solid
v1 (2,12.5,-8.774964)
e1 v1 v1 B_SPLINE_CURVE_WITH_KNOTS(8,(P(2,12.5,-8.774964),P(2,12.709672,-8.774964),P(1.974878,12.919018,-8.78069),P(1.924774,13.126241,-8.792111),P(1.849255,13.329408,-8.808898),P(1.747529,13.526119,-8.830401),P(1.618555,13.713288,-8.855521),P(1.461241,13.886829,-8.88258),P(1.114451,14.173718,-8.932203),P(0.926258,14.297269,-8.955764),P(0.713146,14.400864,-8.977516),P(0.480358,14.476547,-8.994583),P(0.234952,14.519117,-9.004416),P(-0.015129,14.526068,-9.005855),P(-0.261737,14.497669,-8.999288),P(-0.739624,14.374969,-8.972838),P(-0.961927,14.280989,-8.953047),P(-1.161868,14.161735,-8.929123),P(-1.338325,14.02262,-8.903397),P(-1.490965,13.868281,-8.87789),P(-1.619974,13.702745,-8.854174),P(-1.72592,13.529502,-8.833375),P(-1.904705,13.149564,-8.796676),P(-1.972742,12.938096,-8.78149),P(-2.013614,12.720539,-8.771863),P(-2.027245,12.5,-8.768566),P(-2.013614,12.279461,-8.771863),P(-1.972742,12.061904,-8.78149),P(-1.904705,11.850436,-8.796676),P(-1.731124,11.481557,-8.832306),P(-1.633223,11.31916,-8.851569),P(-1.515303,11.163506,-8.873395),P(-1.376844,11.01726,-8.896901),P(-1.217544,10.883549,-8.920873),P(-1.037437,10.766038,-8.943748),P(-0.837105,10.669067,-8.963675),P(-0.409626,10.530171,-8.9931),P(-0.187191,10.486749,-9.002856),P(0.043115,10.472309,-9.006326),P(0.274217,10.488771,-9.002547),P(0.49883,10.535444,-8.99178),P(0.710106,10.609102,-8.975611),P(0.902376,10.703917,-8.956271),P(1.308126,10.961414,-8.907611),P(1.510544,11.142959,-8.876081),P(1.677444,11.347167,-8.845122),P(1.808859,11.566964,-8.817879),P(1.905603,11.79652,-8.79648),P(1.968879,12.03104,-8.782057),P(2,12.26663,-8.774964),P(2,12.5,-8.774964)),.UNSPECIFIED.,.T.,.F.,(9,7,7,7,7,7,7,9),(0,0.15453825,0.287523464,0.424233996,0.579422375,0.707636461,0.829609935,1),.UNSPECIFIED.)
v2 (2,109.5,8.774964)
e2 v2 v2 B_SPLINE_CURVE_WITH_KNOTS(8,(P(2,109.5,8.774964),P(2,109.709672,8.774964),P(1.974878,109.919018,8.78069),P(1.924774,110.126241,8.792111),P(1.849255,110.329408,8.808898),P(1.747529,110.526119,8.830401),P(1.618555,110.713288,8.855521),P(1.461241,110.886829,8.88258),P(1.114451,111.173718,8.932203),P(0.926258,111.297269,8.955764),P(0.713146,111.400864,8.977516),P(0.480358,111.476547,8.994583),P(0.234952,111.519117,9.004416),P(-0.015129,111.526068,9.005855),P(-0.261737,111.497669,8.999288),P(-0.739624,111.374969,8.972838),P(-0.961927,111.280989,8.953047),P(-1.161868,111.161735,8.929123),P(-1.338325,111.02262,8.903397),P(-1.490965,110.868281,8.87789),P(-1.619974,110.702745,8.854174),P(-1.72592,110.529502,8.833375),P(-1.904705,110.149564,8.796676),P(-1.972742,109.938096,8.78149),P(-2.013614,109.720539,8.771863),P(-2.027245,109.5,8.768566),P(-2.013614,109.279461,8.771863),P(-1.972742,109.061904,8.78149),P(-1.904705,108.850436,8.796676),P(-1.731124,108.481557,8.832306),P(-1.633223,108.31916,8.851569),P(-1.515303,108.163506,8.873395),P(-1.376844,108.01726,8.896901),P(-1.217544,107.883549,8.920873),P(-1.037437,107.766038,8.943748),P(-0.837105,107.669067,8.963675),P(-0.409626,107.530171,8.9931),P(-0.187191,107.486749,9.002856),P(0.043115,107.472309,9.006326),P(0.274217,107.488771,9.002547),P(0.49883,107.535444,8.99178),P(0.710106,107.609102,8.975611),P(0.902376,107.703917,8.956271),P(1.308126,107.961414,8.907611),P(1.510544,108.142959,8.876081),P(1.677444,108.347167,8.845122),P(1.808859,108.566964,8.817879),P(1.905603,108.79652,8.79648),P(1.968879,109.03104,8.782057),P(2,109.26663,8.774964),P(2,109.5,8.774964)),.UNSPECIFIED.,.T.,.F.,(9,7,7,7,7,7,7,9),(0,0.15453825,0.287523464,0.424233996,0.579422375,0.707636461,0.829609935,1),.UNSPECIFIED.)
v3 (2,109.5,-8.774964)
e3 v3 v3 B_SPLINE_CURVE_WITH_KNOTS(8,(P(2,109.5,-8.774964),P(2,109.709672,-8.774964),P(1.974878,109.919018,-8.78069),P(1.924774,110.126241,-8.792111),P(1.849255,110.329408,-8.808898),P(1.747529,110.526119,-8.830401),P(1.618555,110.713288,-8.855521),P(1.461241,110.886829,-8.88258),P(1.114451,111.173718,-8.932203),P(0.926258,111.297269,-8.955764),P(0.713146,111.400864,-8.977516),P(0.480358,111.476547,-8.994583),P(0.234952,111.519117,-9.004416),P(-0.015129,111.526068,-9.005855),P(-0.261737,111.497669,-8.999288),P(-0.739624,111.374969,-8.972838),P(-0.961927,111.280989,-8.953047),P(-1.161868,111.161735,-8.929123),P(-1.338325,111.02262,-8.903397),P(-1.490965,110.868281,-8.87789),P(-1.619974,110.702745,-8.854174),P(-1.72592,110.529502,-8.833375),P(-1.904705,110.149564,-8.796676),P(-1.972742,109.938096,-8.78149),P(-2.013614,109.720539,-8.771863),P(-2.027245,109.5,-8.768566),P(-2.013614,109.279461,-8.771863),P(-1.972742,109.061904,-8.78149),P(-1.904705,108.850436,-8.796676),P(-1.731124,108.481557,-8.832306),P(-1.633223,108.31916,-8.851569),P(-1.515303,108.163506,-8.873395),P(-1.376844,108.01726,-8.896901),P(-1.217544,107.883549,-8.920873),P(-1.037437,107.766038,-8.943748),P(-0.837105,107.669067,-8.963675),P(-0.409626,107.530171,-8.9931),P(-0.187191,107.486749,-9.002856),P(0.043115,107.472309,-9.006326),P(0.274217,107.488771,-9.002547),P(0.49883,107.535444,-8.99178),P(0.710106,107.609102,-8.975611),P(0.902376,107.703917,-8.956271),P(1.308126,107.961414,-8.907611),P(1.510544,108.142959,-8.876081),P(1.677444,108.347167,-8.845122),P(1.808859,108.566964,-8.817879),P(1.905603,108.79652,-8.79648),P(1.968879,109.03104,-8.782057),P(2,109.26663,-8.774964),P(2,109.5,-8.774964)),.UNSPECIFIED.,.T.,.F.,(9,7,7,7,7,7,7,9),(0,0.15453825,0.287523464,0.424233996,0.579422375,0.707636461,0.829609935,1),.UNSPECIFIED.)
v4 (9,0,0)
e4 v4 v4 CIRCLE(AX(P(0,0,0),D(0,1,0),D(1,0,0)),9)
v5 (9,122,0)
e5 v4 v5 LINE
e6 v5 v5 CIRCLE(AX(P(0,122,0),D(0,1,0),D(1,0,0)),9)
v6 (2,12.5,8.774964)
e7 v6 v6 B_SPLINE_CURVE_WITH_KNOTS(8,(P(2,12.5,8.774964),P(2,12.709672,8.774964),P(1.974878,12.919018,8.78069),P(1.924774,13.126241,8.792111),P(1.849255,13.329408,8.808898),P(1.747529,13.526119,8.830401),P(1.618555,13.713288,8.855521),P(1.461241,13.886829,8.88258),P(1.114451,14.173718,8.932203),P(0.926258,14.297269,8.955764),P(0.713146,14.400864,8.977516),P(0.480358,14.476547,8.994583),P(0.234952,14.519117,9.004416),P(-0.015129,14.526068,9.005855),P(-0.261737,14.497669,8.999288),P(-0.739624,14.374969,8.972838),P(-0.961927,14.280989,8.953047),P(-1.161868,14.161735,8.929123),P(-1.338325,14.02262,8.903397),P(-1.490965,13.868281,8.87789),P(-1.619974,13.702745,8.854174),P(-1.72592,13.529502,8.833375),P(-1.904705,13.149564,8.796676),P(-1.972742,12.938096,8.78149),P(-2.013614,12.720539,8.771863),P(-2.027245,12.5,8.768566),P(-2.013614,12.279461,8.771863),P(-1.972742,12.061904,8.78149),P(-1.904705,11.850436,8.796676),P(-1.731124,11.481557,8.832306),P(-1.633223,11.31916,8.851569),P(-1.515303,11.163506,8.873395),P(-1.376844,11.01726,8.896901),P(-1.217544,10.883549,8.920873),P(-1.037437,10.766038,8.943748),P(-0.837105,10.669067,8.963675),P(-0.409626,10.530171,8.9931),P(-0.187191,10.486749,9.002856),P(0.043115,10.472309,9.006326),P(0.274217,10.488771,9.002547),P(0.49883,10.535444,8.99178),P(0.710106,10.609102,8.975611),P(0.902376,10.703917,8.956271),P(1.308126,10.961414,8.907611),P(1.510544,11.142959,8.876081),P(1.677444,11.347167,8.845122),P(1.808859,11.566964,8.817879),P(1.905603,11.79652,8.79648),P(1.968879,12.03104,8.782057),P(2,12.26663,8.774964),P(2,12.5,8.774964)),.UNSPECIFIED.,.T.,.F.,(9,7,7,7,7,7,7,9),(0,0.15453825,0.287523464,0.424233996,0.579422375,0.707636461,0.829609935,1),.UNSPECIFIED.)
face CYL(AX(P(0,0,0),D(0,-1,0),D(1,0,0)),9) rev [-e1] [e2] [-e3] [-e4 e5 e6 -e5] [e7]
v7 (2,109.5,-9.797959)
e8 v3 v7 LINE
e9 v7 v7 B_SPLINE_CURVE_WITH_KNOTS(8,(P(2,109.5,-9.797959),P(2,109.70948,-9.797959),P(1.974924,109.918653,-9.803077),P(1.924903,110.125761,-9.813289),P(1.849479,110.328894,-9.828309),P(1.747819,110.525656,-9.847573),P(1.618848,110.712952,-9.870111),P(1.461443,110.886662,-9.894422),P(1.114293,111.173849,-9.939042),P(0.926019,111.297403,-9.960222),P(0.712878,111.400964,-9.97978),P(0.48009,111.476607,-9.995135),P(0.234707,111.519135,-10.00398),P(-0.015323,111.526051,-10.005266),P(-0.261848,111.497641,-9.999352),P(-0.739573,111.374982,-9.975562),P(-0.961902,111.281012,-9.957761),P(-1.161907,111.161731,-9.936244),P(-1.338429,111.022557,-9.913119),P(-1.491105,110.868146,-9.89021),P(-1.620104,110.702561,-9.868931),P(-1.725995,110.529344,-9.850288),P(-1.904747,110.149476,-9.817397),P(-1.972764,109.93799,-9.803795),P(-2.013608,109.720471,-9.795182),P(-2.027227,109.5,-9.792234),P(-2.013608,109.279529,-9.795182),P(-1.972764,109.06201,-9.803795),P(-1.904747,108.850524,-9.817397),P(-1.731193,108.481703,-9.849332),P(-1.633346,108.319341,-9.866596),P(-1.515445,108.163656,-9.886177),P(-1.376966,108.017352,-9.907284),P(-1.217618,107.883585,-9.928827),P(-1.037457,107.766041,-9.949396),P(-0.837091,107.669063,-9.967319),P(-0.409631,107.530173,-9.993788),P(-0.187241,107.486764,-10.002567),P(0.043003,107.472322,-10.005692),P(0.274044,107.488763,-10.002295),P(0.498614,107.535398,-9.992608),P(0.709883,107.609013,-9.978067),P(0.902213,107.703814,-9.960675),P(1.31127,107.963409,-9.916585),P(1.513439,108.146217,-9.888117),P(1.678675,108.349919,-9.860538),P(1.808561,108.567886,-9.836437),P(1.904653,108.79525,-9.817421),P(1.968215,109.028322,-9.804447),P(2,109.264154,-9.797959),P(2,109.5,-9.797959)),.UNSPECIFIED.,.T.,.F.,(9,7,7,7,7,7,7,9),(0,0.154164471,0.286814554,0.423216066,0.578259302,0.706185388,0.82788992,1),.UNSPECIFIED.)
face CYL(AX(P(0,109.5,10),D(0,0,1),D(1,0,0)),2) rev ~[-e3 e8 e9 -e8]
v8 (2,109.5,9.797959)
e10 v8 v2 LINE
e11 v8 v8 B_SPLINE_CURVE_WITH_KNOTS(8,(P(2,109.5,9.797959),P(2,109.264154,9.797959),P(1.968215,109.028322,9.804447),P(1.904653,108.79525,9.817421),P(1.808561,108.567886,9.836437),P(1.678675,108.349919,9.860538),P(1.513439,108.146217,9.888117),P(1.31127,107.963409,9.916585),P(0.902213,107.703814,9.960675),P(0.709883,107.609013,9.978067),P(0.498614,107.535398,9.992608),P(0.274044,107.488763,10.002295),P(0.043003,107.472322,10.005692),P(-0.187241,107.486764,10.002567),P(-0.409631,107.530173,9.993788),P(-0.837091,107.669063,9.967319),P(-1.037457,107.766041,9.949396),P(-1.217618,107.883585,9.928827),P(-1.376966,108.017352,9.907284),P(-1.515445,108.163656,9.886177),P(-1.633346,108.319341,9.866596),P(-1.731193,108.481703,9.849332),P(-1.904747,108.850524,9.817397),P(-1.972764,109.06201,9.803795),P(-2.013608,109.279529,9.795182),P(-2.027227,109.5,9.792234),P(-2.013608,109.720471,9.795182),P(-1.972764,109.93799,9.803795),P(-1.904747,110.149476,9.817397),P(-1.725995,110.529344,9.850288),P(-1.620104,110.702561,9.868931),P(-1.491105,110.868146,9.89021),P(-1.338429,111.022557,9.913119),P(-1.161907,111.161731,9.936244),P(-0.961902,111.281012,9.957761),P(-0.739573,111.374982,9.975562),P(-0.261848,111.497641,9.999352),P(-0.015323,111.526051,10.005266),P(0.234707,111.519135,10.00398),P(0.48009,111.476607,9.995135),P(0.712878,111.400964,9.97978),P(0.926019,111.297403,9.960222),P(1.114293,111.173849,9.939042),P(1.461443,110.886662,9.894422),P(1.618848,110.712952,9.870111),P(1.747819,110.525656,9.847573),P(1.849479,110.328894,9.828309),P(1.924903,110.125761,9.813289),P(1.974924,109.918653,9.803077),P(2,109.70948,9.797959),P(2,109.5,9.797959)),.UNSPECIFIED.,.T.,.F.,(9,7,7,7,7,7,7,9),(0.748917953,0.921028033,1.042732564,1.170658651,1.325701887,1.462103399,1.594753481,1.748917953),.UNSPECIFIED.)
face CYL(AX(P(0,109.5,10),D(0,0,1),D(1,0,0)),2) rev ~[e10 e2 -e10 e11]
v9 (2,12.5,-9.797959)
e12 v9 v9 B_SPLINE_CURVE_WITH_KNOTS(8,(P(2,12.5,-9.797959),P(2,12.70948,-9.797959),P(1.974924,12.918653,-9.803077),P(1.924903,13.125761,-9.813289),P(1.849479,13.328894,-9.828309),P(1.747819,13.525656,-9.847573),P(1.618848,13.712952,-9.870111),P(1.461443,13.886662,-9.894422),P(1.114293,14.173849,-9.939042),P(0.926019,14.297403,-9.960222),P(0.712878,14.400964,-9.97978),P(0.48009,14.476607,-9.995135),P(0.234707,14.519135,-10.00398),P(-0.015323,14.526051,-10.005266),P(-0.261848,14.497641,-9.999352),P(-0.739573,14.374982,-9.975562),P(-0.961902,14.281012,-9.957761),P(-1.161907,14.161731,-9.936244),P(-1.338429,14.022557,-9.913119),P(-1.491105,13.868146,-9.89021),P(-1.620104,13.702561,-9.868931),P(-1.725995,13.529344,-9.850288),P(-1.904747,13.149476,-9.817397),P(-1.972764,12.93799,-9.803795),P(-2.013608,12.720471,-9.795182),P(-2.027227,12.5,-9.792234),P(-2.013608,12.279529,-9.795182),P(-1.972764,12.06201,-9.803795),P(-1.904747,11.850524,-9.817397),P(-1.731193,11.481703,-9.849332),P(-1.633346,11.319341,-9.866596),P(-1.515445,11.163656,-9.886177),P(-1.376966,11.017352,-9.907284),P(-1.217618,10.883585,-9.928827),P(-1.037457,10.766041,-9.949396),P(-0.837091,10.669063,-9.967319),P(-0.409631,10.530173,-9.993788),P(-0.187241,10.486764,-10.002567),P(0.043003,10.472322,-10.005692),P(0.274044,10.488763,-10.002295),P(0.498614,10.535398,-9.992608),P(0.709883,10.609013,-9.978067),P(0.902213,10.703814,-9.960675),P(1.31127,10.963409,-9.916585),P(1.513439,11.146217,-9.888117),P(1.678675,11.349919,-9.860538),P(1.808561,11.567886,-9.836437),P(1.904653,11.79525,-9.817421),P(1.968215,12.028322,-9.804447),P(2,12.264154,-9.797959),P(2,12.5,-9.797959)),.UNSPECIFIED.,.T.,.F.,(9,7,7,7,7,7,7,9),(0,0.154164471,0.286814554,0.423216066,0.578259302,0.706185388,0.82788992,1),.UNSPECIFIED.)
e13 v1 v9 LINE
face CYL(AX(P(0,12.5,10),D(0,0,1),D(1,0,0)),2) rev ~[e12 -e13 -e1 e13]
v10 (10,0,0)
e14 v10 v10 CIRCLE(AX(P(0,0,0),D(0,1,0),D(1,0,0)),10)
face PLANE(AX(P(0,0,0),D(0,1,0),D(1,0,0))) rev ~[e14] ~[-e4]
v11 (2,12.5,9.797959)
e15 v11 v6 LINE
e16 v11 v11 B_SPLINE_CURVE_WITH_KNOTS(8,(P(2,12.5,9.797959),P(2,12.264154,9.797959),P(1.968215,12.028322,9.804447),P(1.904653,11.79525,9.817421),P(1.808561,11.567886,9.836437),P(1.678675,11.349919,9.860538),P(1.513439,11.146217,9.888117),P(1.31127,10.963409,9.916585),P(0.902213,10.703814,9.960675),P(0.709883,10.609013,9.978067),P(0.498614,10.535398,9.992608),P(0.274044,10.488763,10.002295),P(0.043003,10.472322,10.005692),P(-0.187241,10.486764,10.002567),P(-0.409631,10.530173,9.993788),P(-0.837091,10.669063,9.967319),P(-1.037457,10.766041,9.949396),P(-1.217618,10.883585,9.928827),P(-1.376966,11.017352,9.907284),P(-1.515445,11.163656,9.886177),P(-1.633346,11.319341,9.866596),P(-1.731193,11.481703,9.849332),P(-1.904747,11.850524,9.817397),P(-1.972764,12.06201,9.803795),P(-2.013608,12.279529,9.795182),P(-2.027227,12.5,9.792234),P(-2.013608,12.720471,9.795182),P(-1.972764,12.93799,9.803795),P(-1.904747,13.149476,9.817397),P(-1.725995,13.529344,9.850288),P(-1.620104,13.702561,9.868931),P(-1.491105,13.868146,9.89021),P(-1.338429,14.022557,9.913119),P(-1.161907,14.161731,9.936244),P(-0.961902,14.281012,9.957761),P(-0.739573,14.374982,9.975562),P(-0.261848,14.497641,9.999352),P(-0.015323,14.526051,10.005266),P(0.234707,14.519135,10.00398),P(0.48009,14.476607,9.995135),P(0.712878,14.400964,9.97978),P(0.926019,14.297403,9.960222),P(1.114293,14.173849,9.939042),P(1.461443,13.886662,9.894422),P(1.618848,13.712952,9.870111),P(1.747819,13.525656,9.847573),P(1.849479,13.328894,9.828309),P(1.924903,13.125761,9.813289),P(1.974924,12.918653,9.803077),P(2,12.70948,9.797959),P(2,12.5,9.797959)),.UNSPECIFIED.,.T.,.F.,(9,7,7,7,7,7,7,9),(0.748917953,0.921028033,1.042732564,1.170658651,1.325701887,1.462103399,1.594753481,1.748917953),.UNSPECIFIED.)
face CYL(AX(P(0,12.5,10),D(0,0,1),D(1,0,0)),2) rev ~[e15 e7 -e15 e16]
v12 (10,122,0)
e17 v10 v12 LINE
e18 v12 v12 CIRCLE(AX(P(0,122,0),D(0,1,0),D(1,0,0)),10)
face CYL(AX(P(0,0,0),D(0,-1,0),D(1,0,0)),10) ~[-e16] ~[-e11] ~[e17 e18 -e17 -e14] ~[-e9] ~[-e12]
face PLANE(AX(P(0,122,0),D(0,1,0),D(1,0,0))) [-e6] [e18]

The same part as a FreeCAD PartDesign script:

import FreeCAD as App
import Part
import Sketcher

V = App.Vector

doc = App.newDocument("Part")
body = doc.addObject("PartDesign::Body", "Body")

sketch1 = body.newObject("Sketcher::SketchObject", "Sketch")
sketch1.AttachmentSupport = (doc.getObject("XZ_Plane"), [""])
sketch1.MapMode = "FlatFace"
sketch1.addGeometry([
    Part.Circle(V(0, 0, 0), V(0, 0, 1), 10),
    Part.Circle(V(0, 0, 0), V(0, 0, 1), 9),
], False)
sketch1.addConstraint([
    Sketcher.Constraint("Coincident", 0, 3, -1, 1),
    Sketcher.Constraint("Coincident", 1, 3, -1, 1),
    Sketcher.Constraint("Diameter", 0, 20.0),
    Sketcher.Constraint("Diameter", 1, 18.0),
])
pad1 = body.newObject("PartDesign::Pad", "Pad")
pad1.Profile = sketch1
pad1.Length = 122
pad1.Reversed = True

sketch2 = body.newObject("Sketcher::SketchObject", "Sketch001")
sketch2.AttachmentSupport = (doc.getObject("XY_Plane"), [""])
sketch2.MapMode = "FlatFace"
sketch2.AttachmentOffset = App.Placement(V(0, 0, 10), App.Rotation())
sketch2.addGeometry([
    Part.Circle(V(0, 109.5, 0), V(0, 0, 1), 2),
    Part.Circle(V(0, 12.5, 0), V(0, 0, 1), 2),
], False)
sketch2.addConstraint([
    Sketcher.Constraint("Equal", 0, 1),
    Sketcher.Constraint("PointOnObject", 0, 3, -2),
    Sketcher.Constraint("PointOnObject", 1, 3, -2),
    Sketcher.Constraint("Diameter", 0, 4.0),
    Sketcher.Constraint("DistanceY", 1, 3, 0, 3, 97.0),
    Sketcher.Constraint("DistanceY", -1, 1, 0, 3, 109.5),
])
pocket1 = body.newObject("PartDesign::Pocket", "Pocket")
pocket1.Profile = sketch2
pocket1.Type = "ThroughAll"

doc.recompute()
